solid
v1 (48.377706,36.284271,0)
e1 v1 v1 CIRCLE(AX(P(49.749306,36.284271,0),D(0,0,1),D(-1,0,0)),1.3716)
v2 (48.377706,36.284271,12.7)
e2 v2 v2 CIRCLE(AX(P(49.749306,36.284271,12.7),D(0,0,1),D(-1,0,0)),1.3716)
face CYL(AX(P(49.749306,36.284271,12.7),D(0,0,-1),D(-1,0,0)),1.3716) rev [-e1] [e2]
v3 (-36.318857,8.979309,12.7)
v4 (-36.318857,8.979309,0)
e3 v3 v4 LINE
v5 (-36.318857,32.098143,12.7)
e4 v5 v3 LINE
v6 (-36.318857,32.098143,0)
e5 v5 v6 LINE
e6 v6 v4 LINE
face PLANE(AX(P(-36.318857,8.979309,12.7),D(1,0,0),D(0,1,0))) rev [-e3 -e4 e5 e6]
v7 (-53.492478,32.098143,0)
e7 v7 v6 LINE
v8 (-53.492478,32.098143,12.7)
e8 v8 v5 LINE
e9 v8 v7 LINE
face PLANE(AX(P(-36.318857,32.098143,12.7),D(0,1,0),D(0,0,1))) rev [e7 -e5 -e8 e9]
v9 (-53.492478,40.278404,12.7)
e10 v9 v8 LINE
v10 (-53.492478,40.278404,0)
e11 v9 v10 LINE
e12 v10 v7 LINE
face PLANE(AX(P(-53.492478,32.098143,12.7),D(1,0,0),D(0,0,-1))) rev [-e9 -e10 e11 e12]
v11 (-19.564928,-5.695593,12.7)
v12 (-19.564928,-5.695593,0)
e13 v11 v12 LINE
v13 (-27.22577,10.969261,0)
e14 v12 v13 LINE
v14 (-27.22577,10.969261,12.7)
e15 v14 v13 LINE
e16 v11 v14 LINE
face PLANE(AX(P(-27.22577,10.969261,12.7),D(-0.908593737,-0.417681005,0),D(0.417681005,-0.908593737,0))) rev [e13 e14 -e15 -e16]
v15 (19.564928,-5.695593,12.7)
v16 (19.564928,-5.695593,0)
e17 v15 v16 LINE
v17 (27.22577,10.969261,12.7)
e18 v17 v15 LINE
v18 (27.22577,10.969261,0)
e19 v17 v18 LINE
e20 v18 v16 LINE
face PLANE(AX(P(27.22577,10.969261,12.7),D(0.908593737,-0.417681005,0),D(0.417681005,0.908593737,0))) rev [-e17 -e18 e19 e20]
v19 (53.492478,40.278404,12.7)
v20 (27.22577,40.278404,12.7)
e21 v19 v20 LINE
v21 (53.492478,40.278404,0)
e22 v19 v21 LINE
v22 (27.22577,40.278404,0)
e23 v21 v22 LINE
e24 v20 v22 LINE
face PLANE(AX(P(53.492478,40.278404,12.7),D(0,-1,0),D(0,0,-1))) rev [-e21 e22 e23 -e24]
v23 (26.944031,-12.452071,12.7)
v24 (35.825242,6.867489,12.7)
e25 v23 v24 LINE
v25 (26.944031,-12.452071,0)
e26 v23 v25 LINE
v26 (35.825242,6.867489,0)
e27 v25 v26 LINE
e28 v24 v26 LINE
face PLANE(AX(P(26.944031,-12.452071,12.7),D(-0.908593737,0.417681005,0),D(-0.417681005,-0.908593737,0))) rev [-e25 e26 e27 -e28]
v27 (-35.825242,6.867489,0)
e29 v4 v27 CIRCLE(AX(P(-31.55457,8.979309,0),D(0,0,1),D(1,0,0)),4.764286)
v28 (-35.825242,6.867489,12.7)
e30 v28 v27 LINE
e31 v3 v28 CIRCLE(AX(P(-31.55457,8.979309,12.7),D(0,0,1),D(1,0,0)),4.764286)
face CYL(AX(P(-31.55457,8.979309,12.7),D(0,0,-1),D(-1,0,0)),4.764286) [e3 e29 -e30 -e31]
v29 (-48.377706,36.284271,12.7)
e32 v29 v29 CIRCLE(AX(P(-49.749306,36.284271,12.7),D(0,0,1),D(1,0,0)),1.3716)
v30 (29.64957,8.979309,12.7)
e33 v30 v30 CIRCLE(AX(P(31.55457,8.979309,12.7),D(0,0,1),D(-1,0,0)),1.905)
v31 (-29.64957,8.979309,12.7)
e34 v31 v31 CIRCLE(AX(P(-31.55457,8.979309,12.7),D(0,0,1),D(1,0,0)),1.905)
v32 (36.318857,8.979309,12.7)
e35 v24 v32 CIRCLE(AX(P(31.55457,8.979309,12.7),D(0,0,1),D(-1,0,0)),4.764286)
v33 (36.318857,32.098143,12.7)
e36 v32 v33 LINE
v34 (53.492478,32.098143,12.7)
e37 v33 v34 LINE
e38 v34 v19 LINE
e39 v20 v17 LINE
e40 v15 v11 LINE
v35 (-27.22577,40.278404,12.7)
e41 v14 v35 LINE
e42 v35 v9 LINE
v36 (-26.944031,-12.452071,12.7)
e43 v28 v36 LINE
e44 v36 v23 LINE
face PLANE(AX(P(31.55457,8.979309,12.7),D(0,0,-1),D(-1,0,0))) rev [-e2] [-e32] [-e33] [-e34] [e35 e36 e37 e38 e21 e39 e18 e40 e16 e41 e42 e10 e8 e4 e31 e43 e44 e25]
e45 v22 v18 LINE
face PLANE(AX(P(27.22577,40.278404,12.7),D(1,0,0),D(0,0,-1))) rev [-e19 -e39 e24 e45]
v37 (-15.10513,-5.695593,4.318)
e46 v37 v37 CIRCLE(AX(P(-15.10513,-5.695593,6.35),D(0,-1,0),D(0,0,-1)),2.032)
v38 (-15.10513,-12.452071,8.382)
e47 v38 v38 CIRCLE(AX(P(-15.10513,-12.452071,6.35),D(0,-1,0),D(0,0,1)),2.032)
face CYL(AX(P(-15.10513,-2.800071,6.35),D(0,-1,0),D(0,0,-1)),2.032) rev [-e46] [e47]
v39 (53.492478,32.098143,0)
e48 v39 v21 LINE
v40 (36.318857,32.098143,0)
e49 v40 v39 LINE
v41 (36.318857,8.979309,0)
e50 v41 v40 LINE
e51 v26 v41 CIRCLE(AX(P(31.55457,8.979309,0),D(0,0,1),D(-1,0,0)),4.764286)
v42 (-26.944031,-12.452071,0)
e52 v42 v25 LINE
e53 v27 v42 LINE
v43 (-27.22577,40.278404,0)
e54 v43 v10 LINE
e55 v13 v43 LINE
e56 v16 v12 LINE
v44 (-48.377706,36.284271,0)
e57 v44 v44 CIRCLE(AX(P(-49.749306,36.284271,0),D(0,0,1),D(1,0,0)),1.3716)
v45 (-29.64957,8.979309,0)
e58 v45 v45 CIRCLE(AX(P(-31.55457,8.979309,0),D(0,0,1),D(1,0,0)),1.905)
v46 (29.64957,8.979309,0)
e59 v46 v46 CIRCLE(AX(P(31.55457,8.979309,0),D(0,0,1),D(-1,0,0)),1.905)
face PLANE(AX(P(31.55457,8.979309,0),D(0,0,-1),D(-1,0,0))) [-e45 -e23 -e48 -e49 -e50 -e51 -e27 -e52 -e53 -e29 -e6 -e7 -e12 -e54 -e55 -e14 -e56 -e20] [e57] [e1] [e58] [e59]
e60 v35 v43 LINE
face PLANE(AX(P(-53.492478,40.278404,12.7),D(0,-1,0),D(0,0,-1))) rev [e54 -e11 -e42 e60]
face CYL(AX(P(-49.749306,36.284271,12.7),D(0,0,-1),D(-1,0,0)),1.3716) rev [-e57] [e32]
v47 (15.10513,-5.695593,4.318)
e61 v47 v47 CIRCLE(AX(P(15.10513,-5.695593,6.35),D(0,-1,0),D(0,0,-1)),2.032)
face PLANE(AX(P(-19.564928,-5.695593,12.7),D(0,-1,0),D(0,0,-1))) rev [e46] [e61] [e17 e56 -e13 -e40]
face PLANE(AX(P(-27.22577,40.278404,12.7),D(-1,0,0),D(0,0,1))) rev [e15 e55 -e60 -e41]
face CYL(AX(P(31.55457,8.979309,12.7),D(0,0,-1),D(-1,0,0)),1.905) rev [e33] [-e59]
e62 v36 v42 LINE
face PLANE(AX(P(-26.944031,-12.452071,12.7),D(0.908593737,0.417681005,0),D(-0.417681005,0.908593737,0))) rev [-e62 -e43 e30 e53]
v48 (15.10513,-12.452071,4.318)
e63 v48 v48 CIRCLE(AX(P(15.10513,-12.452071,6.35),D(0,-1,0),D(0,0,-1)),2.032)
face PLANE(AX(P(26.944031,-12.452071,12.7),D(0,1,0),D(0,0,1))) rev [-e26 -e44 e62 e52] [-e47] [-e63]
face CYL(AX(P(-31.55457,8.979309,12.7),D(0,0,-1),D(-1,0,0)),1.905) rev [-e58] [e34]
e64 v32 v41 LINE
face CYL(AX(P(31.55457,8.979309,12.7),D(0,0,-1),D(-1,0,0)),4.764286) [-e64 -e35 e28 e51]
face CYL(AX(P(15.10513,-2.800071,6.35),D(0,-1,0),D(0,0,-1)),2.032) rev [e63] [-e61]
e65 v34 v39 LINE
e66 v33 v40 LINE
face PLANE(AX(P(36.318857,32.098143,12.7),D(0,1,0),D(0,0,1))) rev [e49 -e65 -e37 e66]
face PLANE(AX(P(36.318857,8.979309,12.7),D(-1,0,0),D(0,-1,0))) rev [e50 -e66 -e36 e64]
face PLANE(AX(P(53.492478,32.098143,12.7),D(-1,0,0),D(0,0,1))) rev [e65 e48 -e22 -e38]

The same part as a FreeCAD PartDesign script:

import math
import FreeCAD as App
import Part
import Sketcher
Q = App.Units.Quantity

doc = App.newDocument("Part")
body = doc.addObject("PartDesign::Body", "Body")

# Sketch on XY plane
sketch1 = body.newObject("Sketcher::SketchObject", "Sketch")
sketch1.AttachmentSupport = (doc.getObject("XY_Plane"), [""])
sketch1.MapMode = "FlatFace"
sketch1.addGeometry([
    Part.LineSegment(App.Vector(-19.6, -5.7, 0), App.Vector(-27.2, 11, 0)),  # 0
    Part.LineSegment(App.Vector(-27.2, 11, 0), App.Vector(-27.2, 40.3, 0)),  # 1
    Part.LineSegment(App.Vector(-27.2, 40.3, 0), App.Vector(-53.5, 40.3, 0)),  # 2
    Part.LineSegment(App.Vector(-53.5, 40.3, 0), App.Vector(-53.5, 32.1, 0)),  # 3
    Part.LineSegment(App.Vector(-53.5, 32.1, 0), App.Vector(-36.3, 32.1, 0)),  # 4
    Part.LineSegment(App.Vector(-36.3, 32.1, 0), App.Vector(-36.3, 9, 0)),  # 5
    Part.ArcOfCircle(Part.Circle(App.Vector(-31.6, 9, 0), App.Vector(0, 0, 1), 4.8), math.radians(-180), math.radians(-154)),  # 6
    Part.LineSegment(App.Vector(-35.8, 6.9, 0), App.Vector(-26.9, -12.5, 0)),  # 7
    Part.LineSegment(App.Vector(-26.9, -12.5, 0), App.Vector(26.9, -12.5, 0)),  # 8
    Part.LineSegment(App.Vector(26.9, -12.5, 0), App.Vector(35.8, 6.9, 0)),  # 9
    Part.ArcOfCircle(Part.Circle(App.Vector(31.6, 9, 0), App.Vector(0, 0, 1), 4.8), math.radians(-26), math.radians(0)),  # 10
    Part.LineSegment(App.Vector(36.3, 9, 0), App.Vector(36.3, 32.1, 0)),  # 11
    Part.LineSegment(App.Vector(36.3, 32.1, 0), App.Vector(53.5, 32.1, 0)),  # 12
    Part.LineSegment(App.Vector(53.5, 32.1, 0), App.Vector(53.5, 40.3, 0)),  # 13
    Part.LineSegment(App.Vector(53.5, 40.3, 0), App.Vector(27.2, 40.3, 0)),  # 14
    Part.LineSegment(App.Vector(27.2, 40.3, 0), App.Vector(27.2, 11, 0)),  # 15
    Part.LineSegment(App.Vector(27.2, 11, 0), App.Vector(19.6, -5.7, 0)),  # 16
    Part.LineSegment(App.Vector(19.6, -5.7, 0), App.Vector(-19.6, -5.7, 0)),  # 17
    Part.Circle(App.Vector(31.6, 9, 0), App.Vector(0, 0, 1), 1.9),  # 18
    Part.Circle(App.Vector(-31.6, 9, 0), App.Vector(0, 0, 1), 1.9),  # 19
    Part.Circle(App.Vector(49.7, 36.3, 0), App.Vector(0, 0, 1), 1.4),  # 20
    Part.Circle(App.Vector(-49.7, 36.3, 0), App.Vector(0, 0, 1), 1.4),  # 21
], False)
sketch1.addConstraint([
    Sketcher.Constraint("Coincident", 0, 2, 1, 1),
    Sketcher.Constraint("Coincident", 1, 2, 2, 1),
    Sketcher.Constraint("Coincident", 2, 2, 3, 1),
    Sketcher.Constraint("Coincident", 3, 2, 4, 1),
    Sketcher.Constraint("Coincident", 4, 2, 5, 1),
    Sketcher.Constraint("Tangent", 5, 2, 6, 1),
    Sketcher.Constraint("Coincident", 6, 2, 7, 1),
    Sketcher.Constraint("Coincident", 7, 2, 8, 1),
    Sketcher.Constraint("Coincident", 8, 2, 9, 1),
    Sketcher.Constraint("Coincident", 9, 2, 10, 1),
    Sketcher.Constraint("Tangent", 10, 2, 11, 1),
    Sketcher.Constraint("Coincident", 11, 2, 12, 1),
    Sketcher.Constraint("Coincident", 12, 2, 13, 1),
    Sketcher.Constraint("Coincident", 13, 2, 14, 1),
    Sketcher.Constraint("Coincident", 14, 2, 15, 1),
    Sketcher.Constraint("Coincident", 15, 2, 16, 1),
    Sketcher.Constraint("Coincident", 16, 2, 17, 1),
    Sketcher.Constraint("Coincident", 17, 2, 0, 1),
    Sketcher.Constraint("Vertical", 1),
    Sketcher.Constraint("Horizontal", 2),
    Sketcher.Constraint("Vertical", 3),
    Sketcher.Constraint("Horizontal", 4),
    Sketcher.Constraint("Vertical", 5),
    Sketcher.Constraint("Horizontal", 8),
    Sketcher.Constraint("Vertical", 11),
    Sketcher.Constraint("Horizontal", 12),
    Sketcher.Constraint("Vertical", 13),
    Sketcher.Constraint("Horizontal", 14),
    Sketcher.Constraint("Vertical", 15),
    Sketcher.Constraint("Horizontal", 17),
    Sketcher.Constraint("Coincident", 18, 3, 10, 3),
    Sketcher.Constraint("Coincident", 19, 3, 6, 3),
    Sketcher.Constraint("Equal", 6, 10),
    Sketcher.Constraint("Equal", 18, 19),
    Sketcher.Constraint("Equal", 20, 21),
    Sketcher.Constraint("Symmetric", 6, 3, 10, 3, -2),
    Sketcher.Constraint("Symmetric", 20, 3, 21, 3, -2),
    Sketcher.Constraint("Symmetric", 3, 2, 12, 2, -2),
    Sketcher.Constraint("Symmetric", 1, 2, 14, 2, -2),
    Sketcher.Constraint("Parallel", 0, 7),
    Sketcher.Constraint("Parallel", 9, 16),
    Sketcher.Constraint("Horizontal", 6, 2, 9, 2),
    Sketcher.Constraint("Horizontal", 0, 2, 15, 2),
    Sketcher.Constraint("Equal", 7, 9),
    Sketcher.Constraint("Diameter", 18, Q("0.15 in")),
    Sketcher.Constraint("Diameter", 20, Q("0.108 in")),
    Sketcher.Constraint("Radius", 6, 4.764286),
    Sketcher.Constraint("DistanceX", 2, 2, 2, 1, 26.266709),
    Sketcher.Constraint("DistanceX", 4, 1, 4, 2, 17.173622),
    Sketcher.Constraint("DistanceX", 8, 1, 8, 2, 53.888061),
    Sketcher.Constraint("DistanceY", 3, 2, 3, 1, 8.180261),
    Sketcher.Constraint("DistanceX", 0, 2, 8, 2, 54.1698),
    Sketcher.Constraint("Distance", 0, 18.34137),
    Sketcher.Constraint("DistanceX", 17, 2, 17, 1, 39.129855),
    Sketcher.Constraint("DistanceY", 1, 1, 1, 2, 29.309143),
    Sketcher.Constraint("DistanceY", 5, 2, 5, 1, 23.118834),
    Sketcher.Constraint("DistanceY", -1, 1, 6, 3, 8.979309),
    Sketcher.Constraint("DistanceY", -1, 1, 20, 3, 36.284271),
    Sketcher.Constraint("DistanceY", -1, 1, 6, 2, 6.867489),
    Sketcher.Constraint("DistanceX", 21, 3, 20, 3, 99.498612),
])
pad1 = body.newObject("PartDesign::Pad", "Pad")
pad1.Profile = sketch1
pad1.Length = Q("0.5 in")

# Sketch on XZ plane
sketch2 = body.newObject("Sketcher::SketchObject", "Sketch001")
sketch2.AttachmentSupport = (doc.getObject("XZ_Plane"), [""])
sketch2.MapMode = "FlatFace"
sketch2.AttachmentOffset = App.Placement(App.Vector(0, 0, 12.452071), App.Rotation())
sketch2.addGeometry([
    Part.Circle(App.Vector(15.1, 6.3, 0), App.Vector(0, 0, 1), 2),
    Part.Circle(App.Vector(-15.1, 6.3, 0), App.Vector(0, 0, 1), 2),
], False)
sketch2.addConstraint([
    Sketcher.Constraint("Equal", 0, 1),
    Sketcher.Constraint("Symmetric", 0, 3, 1, 3, -2),
    Sketcher.Constraint("Diameter", 0, Q("0.16 in")),
    Sketcher.Constraint("DistanceY", -1, 1, 0, 3, Q("0.25 in")),
    Sketcher.Constraint("DistanceX", -1, 1, 0, 3, 15.10513),
])
pocket1 = body.newObject("PartDesign::Pocket", "Pocket")
pocket1.Profile = sketch2
pocket1.Length = Q("0.38 in")

doc.recompute()
